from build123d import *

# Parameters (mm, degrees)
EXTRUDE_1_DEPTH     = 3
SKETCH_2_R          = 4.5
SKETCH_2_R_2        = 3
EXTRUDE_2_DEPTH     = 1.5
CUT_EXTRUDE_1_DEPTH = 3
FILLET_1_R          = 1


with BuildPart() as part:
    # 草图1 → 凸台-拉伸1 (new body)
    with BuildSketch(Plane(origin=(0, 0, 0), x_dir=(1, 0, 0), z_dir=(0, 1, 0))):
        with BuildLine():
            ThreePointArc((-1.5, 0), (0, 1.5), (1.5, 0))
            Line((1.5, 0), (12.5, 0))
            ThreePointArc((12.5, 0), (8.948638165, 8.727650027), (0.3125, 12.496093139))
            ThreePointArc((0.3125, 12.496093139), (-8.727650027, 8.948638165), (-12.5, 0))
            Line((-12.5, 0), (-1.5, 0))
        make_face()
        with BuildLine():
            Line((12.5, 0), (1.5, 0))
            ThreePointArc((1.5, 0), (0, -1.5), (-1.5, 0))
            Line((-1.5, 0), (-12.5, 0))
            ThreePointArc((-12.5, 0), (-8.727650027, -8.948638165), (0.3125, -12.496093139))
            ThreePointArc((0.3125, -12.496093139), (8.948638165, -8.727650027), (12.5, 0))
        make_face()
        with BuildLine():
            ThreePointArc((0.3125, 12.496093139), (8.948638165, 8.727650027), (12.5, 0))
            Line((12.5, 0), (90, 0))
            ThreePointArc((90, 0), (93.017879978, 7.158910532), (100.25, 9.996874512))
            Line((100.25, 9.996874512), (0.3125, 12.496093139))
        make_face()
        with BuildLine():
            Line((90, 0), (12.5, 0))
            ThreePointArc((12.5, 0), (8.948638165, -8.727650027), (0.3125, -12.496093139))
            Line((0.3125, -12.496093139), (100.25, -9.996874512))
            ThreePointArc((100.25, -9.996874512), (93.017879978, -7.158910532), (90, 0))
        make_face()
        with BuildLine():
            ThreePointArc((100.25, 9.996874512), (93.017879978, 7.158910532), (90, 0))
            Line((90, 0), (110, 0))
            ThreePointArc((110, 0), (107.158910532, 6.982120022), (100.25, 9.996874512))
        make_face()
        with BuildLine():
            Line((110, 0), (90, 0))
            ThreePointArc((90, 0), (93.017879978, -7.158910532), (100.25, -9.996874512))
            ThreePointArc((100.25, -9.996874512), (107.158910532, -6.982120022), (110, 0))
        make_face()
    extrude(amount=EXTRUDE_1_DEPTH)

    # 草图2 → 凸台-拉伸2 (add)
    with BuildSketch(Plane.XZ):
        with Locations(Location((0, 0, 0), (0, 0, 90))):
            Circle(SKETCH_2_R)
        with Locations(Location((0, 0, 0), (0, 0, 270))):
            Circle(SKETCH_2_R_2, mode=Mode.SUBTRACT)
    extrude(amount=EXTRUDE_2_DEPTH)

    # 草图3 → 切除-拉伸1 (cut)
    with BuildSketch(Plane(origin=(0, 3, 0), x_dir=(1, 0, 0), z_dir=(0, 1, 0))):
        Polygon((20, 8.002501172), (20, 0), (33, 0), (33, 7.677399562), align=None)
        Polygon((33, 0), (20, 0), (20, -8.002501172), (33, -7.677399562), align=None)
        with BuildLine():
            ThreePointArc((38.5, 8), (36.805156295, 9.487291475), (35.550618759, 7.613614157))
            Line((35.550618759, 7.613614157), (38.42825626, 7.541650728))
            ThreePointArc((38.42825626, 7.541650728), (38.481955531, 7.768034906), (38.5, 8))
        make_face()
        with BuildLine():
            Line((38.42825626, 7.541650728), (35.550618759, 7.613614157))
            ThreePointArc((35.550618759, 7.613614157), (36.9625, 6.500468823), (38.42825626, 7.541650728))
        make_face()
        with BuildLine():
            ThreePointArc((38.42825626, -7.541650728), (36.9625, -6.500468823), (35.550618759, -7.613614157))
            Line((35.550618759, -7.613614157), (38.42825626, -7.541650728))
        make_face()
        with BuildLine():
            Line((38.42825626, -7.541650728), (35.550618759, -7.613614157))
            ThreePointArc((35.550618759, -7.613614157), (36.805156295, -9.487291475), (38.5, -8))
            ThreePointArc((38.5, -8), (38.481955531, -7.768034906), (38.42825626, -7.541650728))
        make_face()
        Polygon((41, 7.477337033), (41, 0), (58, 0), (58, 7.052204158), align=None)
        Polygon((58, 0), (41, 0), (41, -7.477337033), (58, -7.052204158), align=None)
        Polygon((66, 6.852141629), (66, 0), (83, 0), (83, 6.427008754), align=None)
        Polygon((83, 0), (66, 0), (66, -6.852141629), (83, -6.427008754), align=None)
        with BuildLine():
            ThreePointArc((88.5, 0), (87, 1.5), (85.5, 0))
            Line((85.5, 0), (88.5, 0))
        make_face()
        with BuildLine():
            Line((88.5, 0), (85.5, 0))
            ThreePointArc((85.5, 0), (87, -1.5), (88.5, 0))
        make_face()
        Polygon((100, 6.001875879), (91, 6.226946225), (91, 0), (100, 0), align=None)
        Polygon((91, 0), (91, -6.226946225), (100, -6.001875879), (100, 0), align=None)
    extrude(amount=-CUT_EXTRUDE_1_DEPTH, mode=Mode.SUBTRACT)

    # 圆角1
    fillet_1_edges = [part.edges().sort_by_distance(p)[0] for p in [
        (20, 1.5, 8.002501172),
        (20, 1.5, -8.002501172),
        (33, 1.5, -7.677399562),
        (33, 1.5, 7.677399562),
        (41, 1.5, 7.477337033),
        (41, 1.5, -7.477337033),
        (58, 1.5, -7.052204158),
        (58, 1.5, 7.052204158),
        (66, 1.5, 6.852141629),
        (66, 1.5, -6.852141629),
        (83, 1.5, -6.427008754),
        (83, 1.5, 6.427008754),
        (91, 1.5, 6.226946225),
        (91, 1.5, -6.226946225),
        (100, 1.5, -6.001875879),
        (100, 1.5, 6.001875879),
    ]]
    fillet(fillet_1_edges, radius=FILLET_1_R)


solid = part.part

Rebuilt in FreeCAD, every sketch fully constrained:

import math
import FreeCAD as App
import Part
import Sketcher

V = App.Vector
Q = App.Units.Quantity


def edges_at(feature, points):
    """Names of the edges that pass closest to the given points."""
    edges = feature.Shape.Edges
    near = lambda p: min(range(len(edges)), key=lambda i: edges[i].distToShape(Part.Vertex(*p))[0])
    return sorted({f"Edge{near(p) + 1}" for p in points})

doc = App.newDocument("Part")
params = doc.addObject("Spreadsheet::Sheet", "Params")
for row, (alias, value) in enumerate([
    ("sketch1_diameter", "3 mm"),
    ("sketch1_radius", "10 mm"),
    ("sketch1_radius2", "12.5 mm"),
    ("pad1_length", "3 mm"),
    ("sketch2_diameter", "9 mm"),
    ("sketch2_diameter2", "6 mm"),
    ("pad2_length", "1.5 mm"),
    ("sketch3_diameter", "3 mm"),
    ("pocket1_length", "3 mm"),
    ("fillet_radius", "1 mm"),
], start=1):
    params.set(f"A{row}", alias)
    params.set(f"B{row}", "=" + value)
    params.setAlias(f"B{row}", alias)

body = doc.addObject("PartDesign::Body", "Body")

# Sketch on XZ plane
sketch1 = body.newObject("Sketcher::SketchObject", "Sketch")
sketch1.AttachmentSupport = (doc.getObject("XZ_Plane"), [""])
sketch1.MapMode = "FlatFace"
sketch1.addGeometry([
    Part.LineSegment(V(100.2, -10, 0), V(0.3, -12.5, 0)),  # 0
    Part.ArcOfCircle(Part.Circle(V(0, 0, 0), V(0, 0, 1), 12.5), math.radians(180), math.radians(271)),  # 1
    Part.ArcOfCircle(Part.Circle(V(0, 0, 0), V(0, 0, 1), 12.5), math.radians(89), math.radians(180)),  # 2
    Part.LineSegment(V(0.3, 12.5, 0), V(100.2, 10, 0)),  # 3
    Part.ArcOfCircle(Part.Circle(V(100, 0, 0), V(0, 0, 1), 10), math.radians(0), math.radians(89)),  # 4
    Part.ArcOfCircle(Part.Circle(V(100, 0, 0), V(0, 0, 1), 10), math.radians(-89), math.radians(0)),  # 5
    Part.Circle(V(0, 0, 0), V(0, 0, 1), 1.5),  # 6
], False)
sketch1.addConstraint([
    Sketcher.Constraint("Tangent", 0, 2, 1, 2),
    Sketcher.Constraint("Tangent", 1, 1, 2, 2),
    Sketcher.Constraint("Tangent", 2, 1, 3, 1),
    Sketcher.Constraint("Tangent", 3, 2, 4, 2),
    Sketcher.Constraint("Tangent", 4, 1, 5, 2),
    Sketcher.Constraint("Tangent", 5, 1, 0, 1),
    Sketcher.Constraint("Coincident", 1, 3, -1, 1),
    Sketcher.Constraint("Coincident", 6, 3, -1, 1),
    Sketcher.Constraint("Equal", 1, 2),
    Sketcher.Constraint("Equal", 4, 5),
    Sketcher.Constraint("PointOnObject", 4, 3, -1),
    Sketcher.Constraint("PointOnObject", 1, 1, -1),
    Sketcher.Constraint("PointOnObject", 4, 1, -1),
    Sketcher.Constraint("Diameter", 6, Q("3 mm")),
    Sketcher.Constraint("Radius", 4, Q("10 mm")),
    Sketcher.Constraint("Radius", 1, Q("12.5 mm")),
    Sketcher.Constraint("DistanceX", -1, 1, 4, 3, Q("100 mm")),
])
sketch1.setExpression("Constraints[13]", "Params.sketch1_diameter")
sketch1.setExpression("Constraints[14]", "Params.sketch1_radius")
sketch1.setExpression("Constraints[15]", "Params.sketch1_radius2")
pad1 = body.newObject("PartDesign::Pad", "Pad")
pad1.Profile = sketch1
pad1.setExpression("Length", "Params.pad1_length")
pad1.Reversed = True

# Sketch on XZ plane
sketch2 = body.newObject("Sketcher::SketchObject", "Sketch001")
sketch2.AttachmentSupport = (doc.getObject("XZ_Plane"), [""])
sketch2.MapMode = "FlatFace"
sketch2.addGeometry([
    Part.Circle(V(0, 0, 0), V(0, 0, 1), 4.5),
    Part.Circle(V(0, 0, 0), V(0, 0, 1), 3),
], False)
sketch2.addConstraint([
    Sketcher.Constraint("Coincident", 0, 3, -1, 1),
    Sketcher.Constraint("Coincident", 1, 3, -1, 1),
    Sketcher.Constraint("Diameter", 0, Q("9 mm")),
    Sketcher.Constraint("Diameter", 1, Q("6 mm")),
])
sketch2.setExpression("Constraints[2]", "Params.sketch2_diameter")
sketch2.setExpression("Constraints[3]", "Params.sketch2_diameter2")
pad2 = body.newObject("PartDesign::Pad", "Pad001")
pad2.Profile = sketch2
pad2.setExpression("Length", "Params.pad2_length")

# Sketch on XZ plane
sketch3 = body.newObject("Sketcher::SketchObject", "Sketch002")
sketch3.AttachmentSupport = (doc.getObject("XZ_Plane"), [""])
sketch3.MapMode = "FlatFace"
sketch3.AttachmentOffset = App.Placement(V(0, 0, -3), App.Rotation())
sketch3.addGeometry([
    Part.LineSegment(V(20, -8, 0), V(20, 8, 0)),  # 0
    Part.LineSegment(V(20, 8, 0), V(33, 7.68, 0)),  # 1
    Part.LineSegment(V(33, 7.68, 0), V(33, -7.68, 0)),  # 2
    Part.LineSegment(V(33, -7.68, 0), V(20, -8, 0)),  # 3
    Part.ArcOfCircle(Part.Circle(V(37, -8, 0), V(0, 0, 1), 1.5), math.radians(165), math.radians(360)),  # 4
    Part.ArcOfCircle(Part.Circle(V(37, -8, 0), V(0, 0, 1), 1.5), math.radians(18), math.radians(165)),  # 5
    Part.ArcOfCircle(Part.Circle(V(37, -8, 0), V(0, 0, 1), 1.5), math.radians(0), math.radians(17.79)),  # 6
    Part.ArcOfCircle(Part.Circle(V(37, 8, 0), V(0, 0, 1), 1.5), math.radians(-165), math.radians(-18)),  # 7
    Part.ArcOfCircle(Part.Circle(V(37, 8, 0), V(0, 0, 1), 1.5), math.radians(0), math.radians(195)),  # 8
    Part.ArcOfCircle(Part.Circle(V(37, 8, 0), V(0, 0, 1), 1.5), math.radians(-17.79), math.radians(0)),  # 9
    Part.LineSegment(V(41, -7.48, 0), V(41, 7.48, 0)),  # 10
    Part.LineSegment(V(41, 7.48, 0), V(58, 7.05, 0)),  # 11
    Part.LineSegment(V(58, 7.05, 0), V(58, -7.05, 0)),  # 12
    Part.LineSegment(V(58, -7.05, 0), V(41, -7.48, 0)),  # 13
    Part.LineSegment(V(66, -6.85, 0), V(66, 6.85, 0)),  # 14
    Part.LineSegment(V(66, 6.85, 0), V(83, 6.43, 0)),  # 15
    Part.LineSegment(V(83, 6.43, 0), V(83, -6.43, 0)),  # 16
    Part.LineSegment(V(83, -6.43, 0), V(66, -6.85, 0)),  # 17
    Part.Circle(V(87, 0, 0), V(0, 0, 1), 1.5),  # 18
    Part.LineSegment(V(100, -6, 0), V(91, -6.23, 0)),  # 19
    Part.LineSegment(V(91, -6.23, 0), V(91, 6.23, 0)),  # 20
    Part.LineSegment(V(91, 6.23, 0), V(100, 6, 0)),  # 21
    Part.LineSegment(V(100, 6, 0), V(100, -6, 0)),  # 22
], False)
sketch3.addConstraint([
    Sketcher.Constraint("Coincident", 0, 2, 1, 1),
    Sketcher.Constraint("Coincident", 1, 2, 2, 1),
    Sketcher.Constraint("Coincident", 2, 2, 3, 1),
    Sketcher.Constraint("Coincident", 3, 2, 0, 1),
    Sketcher.Constraint("Tangent", 4, 1, 5, 2),
    Sketcher.Constraint("Tangent", 5, 1, 6, 2),
    Sketcher.Constraint("Tangent", 6, 1, 4, 2),
    Sketcher.Constraint("Tangent", 7, 1, 8, 2),
    Sketcher.Constraint("Tangent", 8, 1, 9, 2),
    Sketcher.Constraint("Tangent", 9, 1, 7, 2),
    Sketcher.Constraint("Coincident", 10, 2, 11, 1),
    Sketcher.Constraint("Coincident", 11, 2, 12, 1),
    Sketcher.Constraint("Coincident", 12, 2, 13, 1),
    Sketcher.Constraint("Coincident", 13, 2, 10, 1),
    Sketcher.Constraint("Coincident", 14, 2, 15, 1),
    Sketcher.Constraint("Coincident", 15, 2, 16, 1),
    Sketcher.Constraint("Coincident", 16, 2, 17, 1),
    Sketcher.Constraint("Coincident", 17, 2, 14, 1),
    Sketcher.Constraint("Coincident", 19, 2, 20, 1),
    Sketcher.Constraint("Coincident", 20, 2, 21, 1),
    Sketcher.Constraint("Coincident", 21, 2, 22, 1),
    Sketcher.Constraint("Coincident", 22, 2, 19, 1),
    Sketcher.Constraint("Vertical", 0),
    Sketcher.Constraint("Vertical", 2),
    Sketcher.Constraint("Vertical", 10),
    Sketcher.Constraint("Vertical", 12),
    Sketcher.Constraint("Vertical", 14),
    Sketcher.Constraint("Vertical", 16),
    Sketcher.Constraint("Vertical", 20),
    Sketcher.Constraint("Vertical", 22),
    Sketcher.Constraint("Equal", 6, 7),
    Sketcher.Constraint("Equal", 9, 18),
    Sketcher.Constraint("Symmetric", 4, 3, 7, 3, -1),
    Sketcher.Constraint("PointOnObject", 18, 3, -1),
    Sketcher.Constraint("Parallel", 1, 11),
    Sketcher.Constraint("Parallel", 3, 13),
    Sketcher.Constraint("Parallel", 11, 15),
    Sketcher.Constraint("Parallel", 13, 17),
    Sketcher.Constraint("Parallel", 17, 19),
    Sketcher.Constraint("Parallel", 15, 21),
    Sketcher.Constraint("Horizontal", 5, 3, 6, 1),
    Sketcher.Constraint("Horizontal", 9, 3, 8, 1),
    Sketcher.Constraint("Vertical", 4, 1, 7, 1),
    Sketcher.Constraint("Vertical", 5, 1, 9, 1),
    Sketcher.Constraint("Equal", 1, 3),
    Sketcher.Constraint("Equal", 13, 15),
    Sketcher.Constraint("Diameter", 18, Q("3 mm")),
    Sketcher.Constraint("DistanceX", -1, 1, 4, 3, Q("37 mm")),
    Sketcher.Constraint("DistanceY", 4, 3, -1, 1, Q("8 mm")),
    Sketcher.Constraint("DistanceX", -1, 1, 18, 3, Q("87 mm")),
    Sketcher.Constraint("DistanceX", -1, 1, 0, 2, Q("20 mm")),
    Sketcher.Constraint("DistanceX", -1, 1, 1, 2, Q("33 mm")),
    Sketcher.Constraint("DistanceX", -1, 1, 10, 2, Q("41 mm")),
    Sketcher.Constraint("DistanceX", -1, 1, 11, 2, Q("58 mm")),
    Sketcher.Constraint("DistanceX", -1, 1, 14, 2, Q("66 mm")),
    Sketcher.Constraint("DistanceX", -1, 1, 19, 2, Q("91 mm")),
    Sketcher.Constraint("DistanceX", -1, 1, 21, 2, Q("100 mm")),
    Sketcher.Constraint("DistanceY", 2, 2, 2, 1, Q("15.354799 mm")),
    Sketcher.Constraint("DistanceY", 12, 2, 12, 1, Q("14.104408 mm")),
    Sketcher.Constraint("DistanceY", 22, 2, 22, 1, Q("12.003752 mm")),
    Sketcher.Constraint("DistanceY", -1, 1, 0, 2, Q("8.002501 mm")),
    Sketcher.Constraint("DistanceY", -1, 1, 1, 2, Q("7.6774 mm")),
    Sketcher.Constraint("DistanceY", 14, 1, 14, 2, Q("13.704283 mm")),
    Sketcher.Constraint("DistanceX", -1, 1, 4, 1, Q("35.550619 mm")),
    Sketcher.Constraint("DistanceY", 5, 1, -1, 1, Q("7.541651 mm")),
    Sketcher.Constraint("DistanceY", -1, 1, 14, 2, Q("6.852142 mm")),
    Sketcher.Constraint("DistanceY", 15, 2, 10, 2, Q("1.050328 mm")),
    Sketcher.Constraint("DistanceY", 19, 2, -1, 1, Q("6.226946 mm")),
])
sketch3.setExpression("Constraints[46]", "Params.sketch3_diameter")
pocket1 = body.newObject("PartDesign::Pocket", "Pocket")
pocket1.Profile = sketch3
pocket1.setExpression("Length", "Params.pocket1_length")
pocket1.Reversed = True
doc.recompute()

fillet = body.newObject("PartDesign::Fillet", "Fillet")
fillet.Base = (pocket1, edges_at(pocket1, [
    (20, 1.5, 8.003),
    (20, 1.5, -8.003),
    (33, 1.5, -7.677),
    (33, 1.5, 7.677),
    (41, 1.5, 7.477),
    (41, 1.5, -7.477),
    (58, 1.5, -7.052),
    (58, 1.5, 7.052),
    (66, 1.5, 6.852),
    (66, 1.5, -6.852),
    (83, 1.5, -6.427),
    (83, 1.5, 6.427),
    (91, 1.5, 6.227),
    (91, 1.5, -6.227),
    (100, 1.5, -6.002),
    (100, 1.5, 6.002),
]))
fillet.setExpression("Radius", "Params.fillet_radius")

doc.recompute()
